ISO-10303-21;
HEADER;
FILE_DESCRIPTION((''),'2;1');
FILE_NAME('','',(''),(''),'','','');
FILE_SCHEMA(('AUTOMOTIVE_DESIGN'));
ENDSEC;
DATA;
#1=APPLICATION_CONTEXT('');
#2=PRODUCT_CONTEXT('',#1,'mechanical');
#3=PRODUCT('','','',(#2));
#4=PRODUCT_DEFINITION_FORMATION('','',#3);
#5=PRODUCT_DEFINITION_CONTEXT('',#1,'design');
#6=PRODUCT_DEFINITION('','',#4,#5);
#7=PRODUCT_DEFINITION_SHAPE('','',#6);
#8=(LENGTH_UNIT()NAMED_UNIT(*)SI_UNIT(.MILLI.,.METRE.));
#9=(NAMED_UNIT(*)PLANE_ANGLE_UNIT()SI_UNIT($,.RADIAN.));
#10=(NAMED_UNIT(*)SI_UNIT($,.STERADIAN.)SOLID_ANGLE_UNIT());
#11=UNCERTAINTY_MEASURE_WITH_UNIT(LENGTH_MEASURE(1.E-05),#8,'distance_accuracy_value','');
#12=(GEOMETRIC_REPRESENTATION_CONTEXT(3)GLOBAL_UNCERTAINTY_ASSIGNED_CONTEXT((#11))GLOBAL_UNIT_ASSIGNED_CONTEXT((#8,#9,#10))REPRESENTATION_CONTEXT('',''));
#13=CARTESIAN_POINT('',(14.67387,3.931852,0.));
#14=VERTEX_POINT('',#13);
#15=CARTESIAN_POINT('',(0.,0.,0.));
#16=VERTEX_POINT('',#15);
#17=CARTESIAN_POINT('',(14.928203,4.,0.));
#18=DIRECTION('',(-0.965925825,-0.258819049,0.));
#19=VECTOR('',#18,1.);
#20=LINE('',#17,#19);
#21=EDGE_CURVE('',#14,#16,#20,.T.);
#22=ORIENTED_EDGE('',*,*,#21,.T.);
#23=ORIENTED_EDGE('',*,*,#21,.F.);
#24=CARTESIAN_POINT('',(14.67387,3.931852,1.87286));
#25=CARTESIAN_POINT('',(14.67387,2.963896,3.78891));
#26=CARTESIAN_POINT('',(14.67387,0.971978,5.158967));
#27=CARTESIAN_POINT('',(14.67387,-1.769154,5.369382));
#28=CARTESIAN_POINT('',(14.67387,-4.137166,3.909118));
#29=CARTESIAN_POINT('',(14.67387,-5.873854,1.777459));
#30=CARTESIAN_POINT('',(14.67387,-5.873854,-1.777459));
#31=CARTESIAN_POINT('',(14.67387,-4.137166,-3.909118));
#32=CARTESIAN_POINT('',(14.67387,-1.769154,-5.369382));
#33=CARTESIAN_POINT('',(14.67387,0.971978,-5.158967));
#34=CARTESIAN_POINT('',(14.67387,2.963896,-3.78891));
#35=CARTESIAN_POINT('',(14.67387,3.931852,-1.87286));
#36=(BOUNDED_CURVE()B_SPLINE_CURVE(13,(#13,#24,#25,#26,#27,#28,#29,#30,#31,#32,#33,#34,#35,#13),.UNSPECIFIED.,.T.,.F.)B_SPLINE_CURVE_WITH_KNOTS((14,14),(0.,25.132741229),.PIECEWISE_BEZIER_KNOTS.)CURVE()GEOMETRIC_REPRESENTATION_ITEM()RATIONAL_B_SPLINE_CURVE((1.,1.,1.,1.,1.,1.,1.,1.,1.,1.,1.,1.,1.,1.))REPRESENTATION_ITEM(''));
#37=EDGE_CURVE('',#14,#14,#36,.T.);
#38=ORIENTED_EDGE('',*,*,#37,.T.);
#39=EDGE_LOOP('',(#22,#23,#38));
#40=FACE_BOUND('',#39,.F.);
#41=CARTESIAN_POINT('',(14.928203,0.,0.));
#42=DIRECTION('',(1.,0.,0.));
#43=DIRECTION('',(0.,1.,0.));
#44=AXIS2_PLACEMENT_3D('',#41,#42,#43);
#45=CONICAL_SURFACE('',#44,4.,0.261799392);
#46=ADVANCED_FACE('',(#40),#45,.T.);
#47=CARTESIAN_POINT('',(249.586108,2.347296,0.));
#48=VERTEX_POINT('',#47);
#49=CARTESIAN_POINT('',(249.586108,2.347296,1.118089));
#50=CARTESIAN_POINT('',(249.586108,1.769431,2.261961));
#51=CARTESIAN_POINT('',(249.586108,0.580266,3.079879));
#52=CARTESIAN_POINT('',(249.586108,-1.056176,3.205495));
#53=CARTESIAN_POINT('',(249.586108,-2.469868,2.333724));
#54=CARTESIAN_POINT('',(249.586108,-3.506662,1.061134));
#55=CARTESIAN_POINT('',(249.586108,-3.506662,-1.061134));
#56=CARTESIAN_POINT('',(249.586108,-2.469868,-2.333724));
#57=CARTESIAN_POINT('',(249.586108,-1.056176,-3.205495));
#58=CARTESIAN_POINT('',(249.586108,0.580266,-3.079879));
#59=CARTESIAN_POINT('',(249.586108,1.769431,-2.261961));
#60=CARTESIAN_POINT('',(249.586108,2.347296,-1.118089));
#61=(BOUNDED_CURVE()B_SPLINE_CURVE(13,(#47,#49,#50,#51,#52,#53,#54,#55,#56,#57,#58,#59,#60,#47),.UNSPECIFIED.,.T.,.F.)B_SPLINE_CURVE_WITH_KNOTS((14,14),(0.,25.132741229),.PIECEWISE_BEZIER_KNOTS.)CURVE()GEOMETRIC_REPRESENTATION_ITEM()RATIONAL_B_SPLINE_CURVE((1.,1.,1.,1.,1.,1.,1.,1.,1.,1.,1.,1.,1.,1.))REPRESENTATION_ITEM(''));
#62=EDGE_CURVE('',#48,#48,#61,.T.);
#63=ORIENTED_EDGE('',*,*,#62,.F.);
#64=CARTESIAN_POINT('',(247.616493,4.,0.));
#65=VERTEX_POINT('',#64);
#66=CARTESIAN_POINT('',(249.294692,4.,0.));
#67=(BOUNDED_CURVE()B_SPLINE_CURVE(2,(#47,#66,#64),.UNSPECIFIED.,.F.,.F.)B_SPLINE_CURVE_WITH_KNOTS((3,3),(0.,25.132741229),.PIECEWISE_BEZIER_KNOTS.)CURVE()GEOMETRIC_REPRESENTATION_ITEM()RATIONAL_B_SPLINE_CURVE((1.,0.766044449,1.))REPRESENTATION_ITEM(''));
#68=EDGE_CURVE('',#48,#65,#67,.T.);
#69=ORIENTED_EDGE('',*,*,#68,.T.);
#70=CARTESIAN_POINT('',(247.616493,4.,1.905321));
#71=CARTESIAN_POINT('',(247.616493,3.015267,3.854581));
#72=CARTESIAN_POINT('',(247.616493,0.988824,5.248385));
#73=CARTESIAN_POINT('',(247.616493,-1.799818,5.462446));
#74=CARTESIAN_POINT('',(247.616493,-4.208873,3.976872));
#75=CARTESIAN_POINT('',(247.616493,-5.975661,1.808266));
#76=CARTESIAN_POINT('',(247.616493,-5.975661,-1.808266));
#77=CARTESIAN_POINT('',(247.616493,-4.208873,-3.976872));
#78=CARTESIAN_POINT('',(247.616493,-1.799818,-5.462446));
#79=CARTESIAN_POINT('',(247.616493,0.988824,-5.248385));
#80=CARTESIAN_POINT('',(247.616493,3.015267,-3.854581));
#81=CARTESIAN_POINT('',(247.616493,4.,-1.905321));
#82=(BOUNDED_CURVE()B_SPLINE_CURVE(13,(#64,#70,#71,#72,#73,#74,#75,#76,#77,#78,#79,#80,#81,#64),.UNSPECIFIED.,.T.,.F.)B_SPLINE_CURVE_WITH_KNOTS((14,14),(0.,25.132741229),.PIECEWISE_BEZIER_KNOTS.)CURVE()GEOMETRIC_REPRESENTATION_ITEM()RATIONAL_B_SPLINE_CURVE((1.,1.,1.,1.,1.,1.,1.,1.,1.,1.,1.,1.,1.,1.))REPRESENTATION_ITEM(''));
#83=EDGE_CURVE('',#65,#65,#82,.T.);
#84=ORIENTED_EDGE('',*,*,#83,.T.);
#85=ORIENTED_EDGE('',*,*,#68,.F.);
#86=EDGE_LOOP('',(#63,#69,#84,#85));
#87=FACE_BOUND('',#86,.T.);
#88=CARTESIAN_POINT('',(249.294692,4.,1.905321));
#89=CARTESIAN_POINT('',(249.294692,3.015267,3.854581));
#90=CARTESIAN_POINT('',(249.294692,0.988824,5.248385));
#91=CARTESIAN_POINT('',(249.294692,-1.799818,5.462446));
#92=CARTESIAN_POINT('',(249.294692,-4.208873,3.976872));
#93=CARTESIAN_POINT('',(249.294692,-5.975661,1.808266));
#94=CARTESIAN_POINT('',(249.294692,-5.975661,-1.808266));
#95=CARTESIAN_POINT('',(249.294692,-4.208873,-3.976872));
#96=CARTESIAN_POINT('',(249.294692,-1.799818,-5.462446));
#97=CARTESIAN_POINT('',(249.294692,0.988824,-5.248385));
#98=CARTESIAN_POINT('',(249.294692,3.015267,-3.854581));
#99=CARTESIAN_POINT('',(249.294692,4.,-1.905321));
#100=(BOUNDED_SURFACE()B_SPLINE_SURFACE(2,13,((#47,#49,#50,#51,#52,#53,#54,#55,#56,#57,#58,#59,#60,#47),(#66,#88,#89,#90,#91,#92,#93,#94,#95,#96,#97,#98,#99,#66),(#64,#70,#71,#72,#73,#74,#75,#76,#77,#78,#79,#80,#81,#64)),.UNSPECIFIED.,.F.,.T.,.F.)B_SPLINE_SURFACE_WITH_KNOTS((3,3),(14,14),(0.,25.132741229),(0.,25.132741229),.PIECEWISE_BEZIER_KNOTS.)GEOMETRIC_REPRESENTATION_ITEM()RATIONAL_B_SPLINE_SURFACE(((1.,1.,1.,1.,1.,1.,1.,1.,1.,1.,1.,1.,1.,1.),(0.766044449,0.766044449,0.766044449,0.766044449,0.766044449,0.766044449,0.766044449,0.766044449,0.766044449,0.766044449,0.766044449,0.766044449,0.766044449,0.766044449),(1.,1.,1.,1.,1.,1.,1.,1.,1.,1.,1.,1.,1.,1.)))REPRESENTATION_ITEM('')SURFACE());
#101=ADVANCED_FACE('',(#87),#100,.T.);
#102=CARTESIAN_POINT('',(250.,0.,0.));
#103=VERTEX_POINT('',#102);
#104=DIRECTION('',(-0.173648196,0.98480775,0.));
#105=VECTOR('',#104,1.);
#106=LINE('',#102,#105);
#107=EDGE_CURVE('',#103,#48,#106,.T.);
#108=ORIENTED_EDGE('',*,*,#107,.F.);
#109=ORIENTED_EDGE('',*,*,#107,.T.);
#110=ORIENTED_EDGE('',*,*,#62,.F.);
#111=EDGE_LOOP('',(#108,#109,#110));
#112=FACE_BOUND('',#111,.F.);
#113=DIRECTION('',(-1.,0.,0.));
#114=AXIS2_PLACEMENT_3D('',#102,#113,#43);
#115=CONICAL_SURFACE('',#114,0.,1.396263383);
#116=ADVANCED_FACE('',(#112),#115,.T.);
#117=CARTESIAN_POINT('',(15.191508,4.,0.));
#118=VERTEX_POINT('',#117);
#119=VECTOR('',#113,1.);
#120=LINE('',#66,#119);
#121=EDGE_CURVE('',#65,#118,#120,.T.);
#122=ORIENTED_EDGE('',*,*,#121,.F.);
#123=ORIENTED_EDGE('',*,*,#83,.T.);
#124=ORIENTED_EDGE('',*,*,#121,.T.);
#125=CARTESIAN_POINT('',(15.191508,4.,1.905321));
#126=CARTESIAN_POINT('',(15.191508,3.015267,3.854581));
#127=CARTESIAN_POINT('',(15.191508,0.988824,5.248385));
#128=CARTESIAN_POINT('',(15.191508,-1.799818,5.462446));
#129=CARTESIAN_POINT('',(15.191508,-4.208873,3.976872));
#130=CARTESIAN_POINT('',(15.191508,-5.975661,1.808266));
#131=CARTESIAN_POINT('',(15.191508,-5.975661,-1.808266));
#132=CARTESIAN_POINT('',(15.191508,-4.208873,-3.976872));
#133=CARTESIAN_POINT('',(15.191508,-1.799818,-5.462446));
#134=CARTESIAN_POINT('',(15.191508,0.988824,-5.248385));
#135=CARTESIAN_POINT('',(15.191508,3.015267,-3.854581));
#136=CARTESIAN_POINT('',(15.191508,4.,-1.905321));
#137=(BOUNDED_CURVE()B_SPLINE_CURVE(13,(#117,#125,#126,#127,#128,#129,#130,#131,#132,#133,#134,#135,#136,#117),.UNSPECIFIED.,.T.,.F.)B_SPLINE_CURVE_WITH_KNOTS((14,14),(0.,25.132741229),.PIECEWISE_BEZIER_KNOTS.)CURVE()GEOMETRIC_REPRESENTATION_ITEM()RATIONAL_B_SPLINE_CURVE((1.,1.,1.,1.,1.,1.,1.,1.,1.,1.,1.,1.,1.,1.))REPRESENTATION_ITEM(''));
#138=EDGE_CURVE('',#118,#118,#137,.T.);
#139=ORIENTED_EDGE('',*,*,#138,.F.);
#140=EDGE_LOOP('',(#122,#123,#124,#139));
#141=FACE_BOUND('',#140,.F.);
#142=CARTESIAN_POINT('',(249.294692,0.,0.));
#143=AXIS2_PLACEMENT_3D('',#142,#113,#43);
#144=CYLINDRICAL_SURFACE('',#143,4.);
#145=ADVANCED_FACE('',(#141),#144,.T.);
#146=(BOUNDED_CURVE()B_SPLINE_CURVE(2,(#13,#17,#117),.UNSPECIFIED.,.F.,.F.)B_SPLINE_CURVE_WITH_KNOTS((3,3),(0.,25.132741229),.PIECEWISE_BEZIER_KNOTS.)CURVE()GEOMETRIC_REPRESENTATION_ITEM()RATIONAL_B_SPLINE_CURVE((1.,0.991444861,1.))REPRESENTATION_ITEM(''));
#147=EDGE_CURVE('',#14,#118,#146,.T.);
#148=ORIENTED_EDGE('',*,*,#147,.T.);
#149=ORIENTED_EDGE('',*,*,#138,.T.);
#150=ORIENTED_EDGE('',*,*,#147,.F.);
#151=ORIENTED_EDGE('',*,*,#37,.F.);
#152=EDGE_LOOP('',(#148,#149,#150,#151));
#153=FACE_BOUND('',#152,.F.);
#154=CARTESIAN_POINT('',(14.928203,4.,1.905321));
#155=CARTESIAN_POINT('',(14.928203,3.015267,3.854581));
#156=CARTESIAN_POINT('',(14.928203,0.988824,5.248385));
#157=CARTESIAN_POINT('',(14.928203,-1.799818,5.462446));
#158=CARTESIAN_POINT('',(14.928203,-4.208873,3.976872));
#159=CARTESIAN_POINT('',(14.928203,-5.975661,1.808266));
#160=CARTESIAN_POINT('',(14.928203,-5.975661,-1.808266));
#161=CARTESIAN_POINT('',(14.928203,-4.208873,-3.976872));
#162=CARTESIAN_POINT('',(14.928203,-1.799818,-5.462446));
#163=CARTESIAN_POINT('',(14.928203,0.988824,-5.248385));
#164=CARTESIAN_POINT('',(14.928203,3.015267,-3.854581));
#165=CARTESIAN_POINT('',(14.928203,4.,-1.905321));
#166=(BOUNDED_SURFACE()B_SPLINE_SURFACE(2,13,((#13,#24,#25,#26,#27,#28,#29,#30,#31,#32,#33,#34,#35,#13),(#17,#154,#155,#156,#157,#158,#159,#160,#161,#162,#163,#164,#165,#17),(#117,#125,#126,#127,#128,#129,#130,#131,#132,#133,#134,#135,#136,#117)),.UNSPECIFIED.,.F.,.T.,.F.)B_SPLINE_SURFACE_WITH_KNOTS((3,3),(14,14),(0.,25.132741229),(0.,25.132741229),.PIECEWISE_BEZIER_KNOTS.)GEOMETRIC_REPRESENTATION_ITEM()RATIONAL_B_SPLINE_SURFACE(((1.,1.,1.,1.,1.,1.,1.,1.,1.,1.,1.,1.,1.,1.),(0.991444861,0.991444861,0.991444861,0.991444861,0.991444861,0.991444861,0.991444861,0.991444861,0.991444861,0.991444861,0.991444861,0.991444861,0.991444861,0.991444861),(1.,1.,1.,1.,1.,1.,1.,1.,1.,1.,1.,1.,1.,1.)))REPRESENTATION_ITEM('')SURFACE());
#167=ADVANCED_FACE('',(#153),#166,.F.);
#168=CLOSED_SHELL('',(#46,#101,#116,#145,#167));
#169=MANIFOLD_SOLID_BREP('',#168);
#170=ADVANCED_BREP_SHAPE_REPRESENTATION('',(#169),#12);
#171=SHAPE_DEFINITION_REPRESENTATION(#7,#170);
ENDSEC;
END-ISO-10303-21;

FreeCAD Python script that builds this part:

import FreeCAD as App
import Part
import Sketcher

V = App.Vector
Q = App.Units.Quantity


def edges_at(feature, points):
    """Names of the edges that pass closest to the given points."""
    edges = feature.Shape.Edges
    near = lambda p: min(range(len(edges)), key=lambda i: edges[i].distToShape(Part.Vertex(*p))[0])
    return sorted({f"Edge{near(p) + 1}" for p in points})

doc = App.newDocument("Part")
body = doc.addObject("PartDesign::Body", "Body")

sketch1 = doc.addObject("Sketcher::SketchObject", "Sketch")
body.addObject(sketch1)
sketch1.AttachmentSupport = (doc.XY_Plane, [""])
sketch1.MapMode = "FlatFace"
sketch1.addGeometry([
    Part.LineSegment(V(14.928203, 4, 0), V(0, 0, 0)),
    Part.LineSegment(V(0, 0, 0), V(250, 0, 0)),
    Part.LineSegment(V(250, 0, 0), V(249.294692, 4, 0)),
    Part.LineSegment(V(249.294692, 4, 0), V(14.928203, 4, 0)),
], False)
sketch1.addConstraint([
    Sketcher.Constraint("Coincident", 0, 2, 1, 1),
    Sketcher.Constraint("Coincident", 1, 2, 2, 1),
    Sketcher.Constraint("Coincident", 2, 2, 3, 1),
    Sketcher.Constraint("Coincident", 3, 2, 0, 1),
    Sketcher.Constraint("Horizontal", 1),
    Sketcher.Constraint("Horizontal", 3),
    Sketcher.Constraint("Coincident", 0, 2, -1, 1),
    Sketcher.Constraint("DistanceX", 1, 1, 1, 2, 250.0),
    Sketcher.Constraint("Angle", 0, Q("-165 deg")),
    Sketcher.Constraint("Angle", 2, Q("100.000001 deg")),
    Sketcher.Constraint("DistanceY", -1, 1, 2, 2, 4.0),
])
revolution = doc.addObject("PartDesign::Revolution", "Revolution")
body.addObject(revolution)
revolution.Profile = sketch1
revolution.ReferenceAxis = (sketch1, ["H_Axis"])
revolution.Angle = 360
doc.recompute()

fillet = doc.addObject("PartDesign::Fillet", "Fillet")
body.addObject(fillet)
fillet.Base = (revolution, edges_at(revolution, [(14.928, -4, 0), (249.295, -4, 0)]))
fillet.Radius = 2

doc.recompute()
